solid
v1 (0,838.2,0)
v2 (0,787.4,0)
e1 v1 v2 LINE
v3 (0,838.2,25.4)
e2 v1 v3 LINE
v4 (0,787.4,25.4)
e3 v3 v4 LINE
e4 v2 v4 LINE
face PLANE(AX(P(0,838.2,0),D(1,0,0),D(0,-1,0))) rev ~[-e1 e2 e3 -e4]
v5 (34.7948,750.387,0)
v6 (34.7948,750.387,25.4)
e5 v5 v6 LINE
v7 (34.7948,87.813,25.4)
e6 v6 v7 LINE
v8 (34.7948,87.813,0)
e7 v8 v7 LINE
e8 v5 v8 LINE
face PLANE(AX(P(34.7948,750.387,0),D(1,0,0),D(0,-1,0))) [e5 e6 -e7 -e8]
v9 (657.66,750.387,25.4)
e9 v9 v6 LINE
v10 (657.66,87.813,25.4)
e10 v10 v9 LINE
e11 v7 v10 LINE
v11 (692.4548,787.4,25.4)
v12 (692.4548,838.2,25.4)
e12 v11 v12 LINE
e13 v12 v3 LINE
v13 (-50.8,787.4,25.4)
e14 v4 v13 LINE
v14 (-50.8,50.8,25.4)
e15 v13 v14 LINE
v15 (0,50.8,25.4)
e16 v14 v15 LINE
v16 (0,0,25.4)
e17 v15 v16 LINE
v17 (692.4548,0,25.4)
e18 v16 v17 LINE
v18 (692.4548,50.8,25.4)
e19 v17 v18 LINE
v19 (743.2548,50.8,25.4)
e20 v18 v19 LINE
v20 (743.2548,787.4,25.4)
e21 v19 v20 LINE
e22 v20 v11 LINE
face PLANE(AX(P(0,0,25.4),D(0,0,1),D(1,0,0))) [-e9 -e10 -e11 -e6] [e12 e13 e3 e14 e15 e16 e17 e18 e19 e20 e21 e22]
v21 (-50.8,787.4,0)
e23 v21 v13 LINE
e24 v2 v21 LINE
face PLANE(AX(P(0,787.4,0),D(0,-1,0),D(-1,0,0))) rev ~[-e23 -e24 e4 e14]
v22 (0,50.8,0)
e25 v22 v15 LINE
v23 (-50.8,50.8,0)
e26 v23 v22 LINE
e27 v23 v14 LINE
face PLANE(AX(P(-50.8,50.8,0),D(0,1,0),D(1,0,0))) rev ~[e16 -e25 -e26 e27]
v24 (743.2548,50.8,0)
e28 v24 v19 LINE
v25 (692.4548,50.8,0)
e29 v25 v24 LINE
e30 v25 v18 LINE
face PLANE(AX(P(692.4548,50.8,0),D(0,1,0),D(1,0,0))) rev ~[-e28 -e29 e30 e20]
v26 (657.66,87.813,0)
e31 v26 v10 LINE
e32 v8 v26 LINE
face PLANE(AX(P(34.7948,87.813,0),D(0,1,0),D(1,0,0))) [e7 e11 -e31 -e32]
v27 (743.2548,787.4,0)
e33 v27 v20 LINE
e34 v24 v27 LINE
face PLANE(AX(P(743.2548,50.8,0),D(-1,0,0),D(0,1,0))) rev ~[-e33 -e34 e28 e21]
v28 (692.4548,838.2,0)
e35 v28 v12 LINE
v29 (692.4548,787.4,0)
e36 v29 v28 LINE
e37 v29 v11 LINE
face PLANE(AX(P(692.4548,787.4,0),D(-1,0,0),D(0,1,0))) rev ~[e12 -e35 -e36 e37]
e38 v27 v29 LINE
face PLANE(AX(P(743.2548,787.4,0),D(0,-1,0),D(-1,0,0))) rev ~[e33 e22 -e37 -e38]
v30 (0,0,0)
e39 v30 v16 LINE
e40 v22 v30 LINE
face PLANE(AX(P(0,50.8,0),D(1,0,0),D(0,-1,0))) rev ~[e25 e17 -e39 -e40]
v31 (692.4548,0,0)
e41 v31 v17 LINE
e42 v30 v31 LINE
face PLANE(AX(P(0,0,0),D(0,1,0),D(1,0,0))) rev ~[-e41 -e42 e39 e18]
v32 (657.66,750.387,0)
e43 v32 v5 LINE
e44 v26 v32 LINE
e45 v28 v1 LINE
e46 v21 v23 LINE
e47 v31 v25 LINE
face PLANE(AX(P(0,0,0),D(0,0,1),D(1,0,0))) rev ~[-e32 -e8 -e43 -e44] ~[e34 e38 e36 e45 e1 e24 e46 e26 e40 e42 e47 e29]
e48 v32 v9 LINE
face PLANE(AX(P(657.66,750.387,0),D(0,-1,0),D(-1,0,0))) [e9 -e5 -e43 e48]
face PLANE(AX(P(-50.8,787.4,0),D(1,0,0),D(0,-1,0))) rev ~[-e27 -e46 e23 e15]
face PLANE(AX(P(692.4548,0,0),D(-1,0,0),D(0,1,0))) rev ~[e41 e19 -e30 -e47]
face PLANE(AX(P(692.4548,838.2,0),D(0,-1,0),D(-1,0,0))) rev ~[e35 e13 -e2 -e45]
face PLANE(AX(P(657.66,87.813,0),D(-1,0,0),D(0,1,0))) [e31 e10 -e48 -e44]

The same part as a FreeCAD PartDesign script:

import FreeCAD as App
import Part
import Sketcher
from FreeCAD import Vector
Q = App.Units.Quantity


def add_polygon(sketch, points):
    """Adds a closed chain of lines whose ends are joined by coincident constraints."""
    first, n = sketch.GeometryCount, len(points)
    for a, b in zip(points, points[1:] + points[:1]):
        sketch.addGeometry(Part.LineSegment(App.Vector(*a, 0), App.Vector(*b, 0)), False)
    for i in range(n):
        sketch.addConstraint(Sketcher.Constraint("Coincident", first + i, 2, first + (i + 1) % n, 1))

doc = App.newDocument("Part")
body = doc.addObject("PartDesign::Body", "Body")

# Sketch on XY plane
sketch1 = doc.addObject("Sketcher::SketchObject", "Sketch")
body.addObject(sketch1)
sketch1.AttachmentSupport = (doc.XY_Plane, [""])
sketch1.MapMode = "FlatFace"
add_polygon(sketch1, [(0, 51), (0, 0), (692, 0), (692, 51), (743, 51), (743, 787), (692, 787), (692, 838), (0, 838), (0, 787), (-51, 787), (-51, 51)])  # lines 0-11
add_polygon(sketch1, [(35, 750), (658, 750), (658, 88), (35, 88)])  # lines 12-15
sketch1.addConstraint([
    Sketcher.Constraint("Vertical", 0),
    Sketcher.Constraint("Horizontal", 1),
    Sketcher.Constraint("Vertical", 2),
    Sketcher.Constraint("Horizontal", 3),
    Sketcher.Constraint("Vertical", 4),
    Sketcher.Constraint("Horizontal", 5),
    Sketcher.Constraint("Vertical", 6),
    Sketcher.Constraint("Horizontal", 7),
    Sketcher.Constraint("Vertical", 8),
    Sketcher.Constraint("Horizontal", 9),
    Sketcher.Constraint("Vertical", 10),
    Sketcher.Constraint("Horizontal", 11),
    Sketcher.Constraint("Horizontal", 12),
    Sketcher.Constraint("Vertical", 13),
    Sketcher.Constraint("Horizontal", 14),
    Sketcher.Constraint("Vertical", 15),
    Sketcher.Constraint("Coincident", 0, 2, -1, 1),
    Sketcher.Constraint("PointOnObject", 7, 2, -2),
    Sketcher.Constraint("Horizontal", 5, 2, 8, 2),
    Sketcher.Constraint("Horizontal", 3, 2, 10, 2),
    Sketcher.Constraint("Vertical", 2, 2, 5, 2),
    Sketcher.Constraint("Equal", 5, 9),
    Sketcher.Constraint("Equal", 11, 0),
    Sketcher.Constraint("Equal", 2, 6),
    Sketcher.Constraint("DistanceX", 3, 1, 3, 2, Q("2 in")),
    Sketcher.Constraint("DistanceY", 4, 1, 4, 2, Q("29 in")),
    Sketcher.Constraint("DistanceX", 1, 1, 1, 2, Q("27.262 in")),
    Sketcher.Constraint("DistanceY", 13, 2, 13, 1, Q("26.0856 in")),
    Sketcher.Constraint("DistanceX", 12, 1, 12, 2, Q("622.8652 mm")),
    Sketcher.Constraint("DistanceY", -1, 1, 12, 2, Q("29.5428 in")),
    Sketcher.Constraint("DistanceX", -1, 1, 12, 2, Q("657.66 mm")),
])
pad1 = doc.addObject("PartDesign::Pad", "Pad")
body.addObject(pad1)
pad1.Profile = sketch1
pad1.Length = Q("1 in")

doc.recompute()
